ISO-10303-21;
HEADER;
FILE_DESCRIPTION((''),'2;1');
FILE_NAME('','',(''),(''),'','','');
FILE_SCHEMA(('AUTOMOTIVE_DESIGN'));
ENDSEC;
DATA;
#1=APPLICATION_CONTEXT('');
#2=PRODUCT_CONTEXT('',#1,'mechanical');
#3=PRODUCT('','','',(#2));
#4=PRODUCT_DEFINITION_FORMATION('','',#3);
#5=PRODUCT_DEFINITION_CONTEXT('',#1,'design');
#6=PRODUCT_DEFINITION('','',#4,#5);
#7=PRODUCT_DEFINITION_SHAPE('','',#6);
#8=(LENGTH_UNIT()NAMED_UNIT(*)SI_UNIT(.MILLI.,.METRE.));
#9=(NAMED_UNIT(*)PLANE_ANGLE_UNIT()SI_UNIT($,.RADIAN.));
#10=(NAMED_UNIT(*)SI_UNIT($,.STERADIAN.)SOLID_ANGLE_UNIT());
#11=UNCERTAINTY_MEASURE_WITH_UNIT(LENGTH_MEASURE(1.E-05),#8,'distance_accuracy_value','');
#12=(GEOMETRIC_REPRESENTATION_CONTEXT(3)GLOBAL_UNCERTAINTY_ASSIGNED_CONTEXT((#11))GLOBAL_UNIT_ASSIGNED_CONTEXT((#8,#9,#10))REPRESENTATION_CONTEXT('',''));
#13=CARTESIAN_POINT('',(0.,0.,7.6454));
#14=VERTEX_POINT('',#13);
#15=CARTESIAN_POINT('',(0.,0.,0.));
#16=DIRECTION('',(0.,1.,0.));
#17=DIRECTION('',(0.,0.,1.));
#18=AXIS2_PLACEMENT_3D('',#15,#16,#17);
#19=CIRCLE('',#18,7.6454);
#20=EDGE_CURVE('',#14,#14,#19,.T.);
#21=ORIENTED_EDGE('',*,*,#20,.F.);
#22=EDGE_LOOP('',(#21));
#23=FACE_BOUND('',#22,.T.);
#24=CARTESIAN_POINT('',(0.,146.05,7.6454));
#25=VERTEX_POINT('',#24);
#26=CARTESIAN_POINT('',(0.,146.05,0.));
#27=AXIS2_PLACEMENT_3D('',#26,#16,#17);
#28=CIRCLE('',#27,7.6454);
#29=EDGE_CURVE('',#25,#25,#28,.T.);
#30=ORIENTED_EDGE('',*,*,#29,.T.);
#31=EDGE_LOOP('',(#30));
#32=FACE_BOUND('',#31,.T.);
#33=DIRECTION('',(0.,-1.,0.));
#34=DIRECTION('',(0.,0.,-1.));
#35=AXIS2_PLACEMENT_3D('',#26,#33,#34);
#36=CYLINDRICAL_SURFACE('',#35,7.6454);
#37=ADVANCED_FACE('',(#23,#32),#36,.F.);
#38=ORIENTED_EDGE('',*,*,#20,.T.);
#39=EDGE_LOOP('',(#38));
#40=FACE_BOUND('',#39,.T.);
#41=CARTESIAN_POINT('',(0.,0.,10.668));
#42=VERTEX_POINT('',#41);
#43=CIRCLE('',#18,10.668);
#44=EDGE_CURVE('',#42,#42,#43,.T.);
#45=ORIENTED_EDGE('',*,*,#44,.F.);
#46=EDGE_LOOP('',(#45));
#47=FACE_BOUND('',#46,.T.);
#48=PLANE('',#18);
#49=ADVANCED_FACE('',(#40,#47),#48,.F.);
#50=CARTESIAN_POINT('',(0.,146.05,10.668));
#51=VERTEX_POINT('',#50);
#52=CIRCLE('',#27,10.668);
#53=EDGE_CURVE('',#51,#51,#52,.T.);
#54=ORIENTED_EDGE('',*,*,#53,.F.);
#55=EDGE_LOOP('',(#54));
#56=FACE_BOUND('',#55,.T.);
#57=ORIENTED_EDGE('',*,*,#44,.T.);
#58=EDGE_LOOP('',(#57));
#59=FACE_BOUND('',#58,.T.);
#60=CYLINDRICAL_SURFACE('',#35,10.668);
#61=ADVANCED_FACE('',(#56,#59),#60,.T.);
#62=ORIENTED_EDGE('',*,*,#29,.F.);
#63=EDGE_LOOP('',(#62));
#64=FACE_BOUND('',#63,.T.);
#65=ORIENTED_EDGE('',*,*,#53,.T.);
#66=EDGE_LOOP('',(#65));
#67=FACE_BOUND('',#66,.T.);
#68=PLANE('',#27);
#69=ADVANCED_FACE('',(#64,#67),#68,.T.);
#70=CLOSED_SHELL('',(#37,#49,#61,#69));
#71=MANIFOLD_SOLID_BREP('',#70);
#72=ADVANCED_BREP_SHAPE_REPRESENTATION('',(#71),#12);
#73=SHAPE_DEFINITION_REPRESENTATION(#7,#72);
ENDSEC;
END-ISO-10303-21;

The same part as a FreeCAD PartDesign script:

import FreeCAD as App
import Part
import Sketcher
from FreeCAD import Vector
Q = App.Units.Quantity

doc = App.newDocument("Part")
params = doc.addObject("Spreadsheet::Sheet", "Params")
for row, (alias, value) in enumerate([
    ("sketch1_diameter", "0.84 in"),
    ("sketch1_diameter2", "0.602 in"),
    ("pad1_length", "5.75 in"),
], start=1):
    params.set(f"A{row}", alias)
    params.set(f"B{row}", "=" + value)
    params.setAlias(f"B{row}", alias)

body = doc.addObject("PartDesign::Body", "Body")

# Sketch on XZ plane
sketch1 = body.newObject("Sketcher::SketchObject", "Sketch")
sketch1.AttachmentSupport = (doc.getObject("XZ_Plane"), [""])
sketch1.MapMode = "FlatFace"
sketch1.addGeometry([
    Part.Circle(Vector(0, 0, 0), Vector(0, 0, 1), 11),
    Part.Circle(Vector(0, 0, 0), Vector(0, 0, 1), 8),
], False)
sketch1.addConstraint([
    Sketcher.Constraint("Coincident", 0, 3, -1, 1),
    Sketcher.Constraint("Coincident", 1, 3, -1, 1),
    Sketcher.Constraint("Diameter", 0, Q("0.84 in")),
    Sketcher.Constraint("Diameter", 1, Q("0.602 in")),
])
sketch1.setExpression("Constraints[2]", "Params.sketch1_diameter")
sketch1.setExpression("Constraints[3]", "Params.sketch1_diameter2")
pad1 = body.newObject("PartDesign::Pad", "Pad")
pad1.Profile = sketch1
pad1.setExpression("Length", "Params.pad1_length")
pad1.Reversed = True

doc.recompute()
